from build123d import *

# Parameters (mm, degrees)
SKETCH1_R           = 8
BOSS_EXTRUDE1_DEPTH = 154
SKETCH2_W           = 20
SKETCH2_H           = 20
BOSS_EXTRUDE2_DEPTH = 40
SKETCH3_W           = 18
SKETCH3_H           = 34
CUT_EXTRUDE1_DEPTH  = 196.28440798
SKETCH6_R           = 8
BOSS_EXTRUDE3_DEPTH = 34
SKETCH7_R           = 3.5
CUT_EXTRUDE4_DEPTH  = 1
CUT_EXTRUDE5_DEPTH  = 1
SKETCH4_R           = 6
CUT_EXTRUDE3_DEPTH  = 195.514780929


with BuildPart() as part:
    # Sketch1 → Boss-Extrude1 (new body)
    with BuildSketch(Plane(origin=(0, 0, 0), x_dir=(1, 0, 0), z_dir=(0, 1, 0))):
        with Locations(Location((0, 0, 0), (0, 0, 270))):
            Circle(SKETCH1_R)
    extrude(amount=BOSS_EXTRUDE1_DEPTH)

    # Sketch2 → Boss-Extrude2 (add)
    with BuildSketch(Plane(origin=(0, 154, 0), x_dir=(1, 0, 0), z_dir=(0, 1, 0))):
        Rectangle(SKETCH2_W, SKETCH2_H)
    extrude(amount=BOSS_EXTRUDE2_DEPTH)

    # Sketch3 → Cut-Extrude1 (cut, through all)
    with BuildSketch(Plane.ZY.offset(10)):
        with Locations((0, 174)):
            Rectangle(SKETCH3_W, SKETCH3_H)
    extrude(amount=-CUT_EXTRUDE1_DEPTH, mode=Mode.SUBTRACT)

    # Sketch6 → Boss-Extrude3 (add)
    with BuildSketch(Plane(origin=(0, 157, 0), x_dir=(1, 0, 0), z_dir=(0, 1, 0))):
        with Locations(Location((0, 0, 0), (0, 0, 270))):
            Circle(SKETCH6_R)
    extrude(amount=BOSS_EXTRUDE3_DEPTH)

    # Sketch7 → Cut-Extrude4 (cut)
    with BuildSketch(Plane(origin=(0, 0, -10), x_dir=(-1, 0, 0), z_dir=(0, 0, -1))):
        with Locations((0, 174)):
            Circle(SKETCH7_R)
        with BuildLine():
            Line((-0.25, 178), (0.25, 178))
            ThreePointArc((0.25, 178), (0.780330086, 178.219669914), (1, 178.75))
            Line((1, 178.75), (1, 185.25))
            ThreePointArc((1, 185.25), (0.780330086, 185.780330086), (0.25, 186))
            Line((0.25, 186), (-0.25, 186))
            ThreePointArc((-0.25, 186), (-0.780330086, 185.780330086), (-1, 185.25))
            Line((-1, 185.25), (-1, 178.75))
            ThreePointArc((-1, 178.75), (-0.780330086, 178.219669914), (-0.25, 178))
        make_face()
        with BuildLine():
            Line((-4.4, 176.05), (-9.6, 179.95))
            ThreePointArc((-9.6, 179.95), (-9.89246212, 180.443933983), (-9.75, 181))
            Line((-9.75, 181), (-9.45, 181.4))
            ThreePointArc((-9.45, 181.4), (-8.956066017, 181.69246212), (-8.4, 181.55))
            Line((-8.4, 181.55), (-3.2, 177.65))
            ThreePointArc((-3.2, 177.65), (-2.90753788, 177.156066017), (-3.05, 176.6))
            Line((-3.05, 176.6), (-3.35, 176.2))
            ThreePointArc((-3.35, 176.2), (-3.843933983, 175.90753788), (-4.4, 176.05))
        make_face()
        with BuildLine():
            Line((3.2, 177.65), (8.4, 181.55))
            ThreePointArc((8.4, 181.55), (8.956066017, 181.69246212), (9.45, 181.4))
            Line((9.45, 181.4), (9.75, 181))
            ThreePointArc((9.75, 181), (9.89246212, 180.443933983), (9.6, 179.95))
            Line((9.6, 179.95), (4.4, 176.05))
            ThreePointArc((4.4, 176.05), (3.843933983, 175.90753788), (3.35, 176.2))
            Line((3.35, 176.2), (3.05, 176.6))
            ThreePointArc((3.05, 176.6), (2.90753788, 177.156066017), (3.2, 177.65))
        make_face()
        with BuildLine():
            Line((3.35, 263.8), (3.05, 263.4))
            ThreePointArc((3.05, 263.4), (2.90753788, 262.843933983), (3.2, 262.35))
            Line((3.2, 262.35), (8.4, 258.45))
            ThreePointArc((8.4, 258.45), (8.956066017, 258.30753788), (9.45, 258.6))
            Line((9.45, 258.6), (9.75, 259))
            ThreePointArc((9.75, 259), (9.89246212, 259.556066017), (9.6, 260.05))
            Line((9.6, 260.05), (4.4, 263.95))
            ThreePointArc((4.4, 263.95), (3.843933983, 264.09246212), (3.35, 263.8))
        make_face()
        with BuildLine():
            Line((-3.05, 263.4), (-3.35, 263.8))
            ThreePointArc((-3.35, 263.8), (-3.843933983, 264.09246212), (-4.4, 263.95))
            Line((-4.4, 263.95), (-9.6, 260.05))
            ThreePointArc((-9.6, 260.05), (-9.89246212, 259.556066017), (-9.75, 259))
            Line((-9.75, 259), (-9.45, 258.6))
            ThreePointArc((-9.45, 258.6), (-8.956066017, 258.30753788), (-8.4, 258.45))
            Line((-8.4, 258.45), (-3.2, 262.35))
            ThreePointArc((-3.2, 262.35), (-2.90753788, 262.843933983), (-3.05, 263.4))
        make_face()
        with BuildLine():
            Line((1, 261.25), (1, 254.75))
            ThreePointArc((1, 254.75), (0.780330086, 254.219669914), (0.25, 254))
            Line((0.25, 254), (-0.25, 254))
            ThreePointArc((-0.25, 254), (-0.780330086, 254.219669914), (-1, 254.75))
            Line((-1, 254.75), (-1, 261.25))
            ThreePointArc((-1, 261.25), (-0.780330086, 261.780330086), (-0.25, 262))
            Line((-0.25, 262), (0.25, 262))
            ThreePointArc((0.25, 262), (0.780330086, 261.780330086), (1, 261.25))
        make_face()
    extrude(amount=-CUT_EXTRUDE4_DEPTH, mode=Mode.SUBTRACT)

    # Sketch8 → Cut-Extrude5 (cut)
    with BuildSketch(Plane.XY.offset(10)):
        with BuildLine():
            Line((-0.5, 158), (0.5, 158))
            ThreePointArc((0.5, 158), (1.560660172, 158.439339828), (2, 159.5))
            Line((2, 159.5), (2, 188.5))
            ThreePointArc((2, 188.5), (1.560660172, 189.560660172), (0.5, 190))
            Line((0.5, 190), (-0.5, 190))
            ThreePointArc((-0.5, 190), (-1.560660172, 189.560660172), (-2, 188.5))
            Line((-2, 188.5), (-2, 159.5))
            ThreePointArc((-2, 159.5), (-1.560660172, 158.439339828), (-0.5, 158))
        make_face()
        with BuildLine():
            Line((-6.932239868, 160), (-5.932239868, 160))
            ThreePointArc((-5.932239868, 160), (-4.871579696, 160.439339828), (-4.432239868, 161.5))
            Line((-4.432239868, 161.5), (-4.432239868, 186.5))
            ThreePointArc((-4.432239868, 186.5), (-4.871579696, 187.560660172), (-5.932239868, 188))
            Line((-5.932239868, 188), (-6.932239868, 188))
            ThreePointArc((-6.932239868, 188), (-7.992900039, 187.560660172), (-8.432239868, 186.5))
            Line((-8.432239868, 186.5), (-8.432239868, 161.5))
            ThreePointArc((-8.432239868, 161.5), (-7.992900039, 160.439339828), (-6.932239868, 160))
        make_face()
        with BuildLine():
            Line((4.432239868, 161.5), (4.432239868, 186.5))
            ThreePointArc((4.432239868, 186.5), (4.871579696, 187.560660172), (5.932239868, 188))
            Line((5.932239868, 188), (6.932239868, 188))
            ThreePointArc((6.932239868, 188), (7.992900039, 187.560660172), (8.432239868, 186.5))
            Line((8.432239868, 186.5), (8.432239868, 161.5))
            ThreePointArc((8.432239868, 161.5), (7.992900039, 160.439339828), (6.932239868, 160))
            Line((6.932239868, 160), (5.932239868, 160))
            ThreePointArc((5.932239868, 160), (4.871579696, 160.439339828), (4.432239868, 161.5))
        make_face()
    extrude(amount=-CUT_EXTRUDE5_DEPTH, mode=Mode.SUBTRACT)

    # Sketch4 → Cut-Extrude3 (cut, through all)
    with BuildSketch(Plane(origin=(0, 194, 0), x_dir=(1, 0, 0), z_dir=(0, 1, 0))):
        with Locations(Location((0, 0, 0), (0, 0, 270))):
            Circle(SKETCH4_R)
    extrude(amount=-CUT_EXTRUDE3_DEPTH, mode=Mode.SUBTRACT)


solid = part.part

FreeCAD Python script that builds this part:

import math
import FreeCAD as App
import Part
import Sketcher

V = App.Vector
Q = App.Units.Quantity


def add_polygon(sketch, points):
    """Adds a closed chain of lines whose ends are joined by coincident constraints."""
    first, n = sketch.GeometryCount, len(points)
    for a, b in zip(points, points[1:] + points[:1]):
        sketch.addGeometry(Part.LineSegment(App.Vector(*a, 0), App.Vector(*b, 0)), False)
    for i in range(n):
        sketch.addConstraint(Sketcher.Constraint("Coincident", first + i, 2, first + (i + 1) % n, 1))

doc = App.newDocument("Part")
body = doc.addObject("PartDesign::Body", "Body")

sketch1 = body.newObject("Sketcher::SketchObject", "Sketch")
sketch1.AttachmentSupport = (doc.getObject("XZ_Plane"), [""])
sketch1.MapMode = "FlatFace"
sketch1.addGeometry(Part.Circle(V(0, 0, 0), V(0, 0, 1), 8), False)
sketch1.addConstraint([
    Sketcher.Constraint("Coincident", 0, 3, -1, 1),
    Sketcher.Constraint("Diameter", 0, Q("16 mm")),
])
pad1 = body.newObject("PartDesign::Pad", "Pad")
pad1.Profile = sketch1
pad1.Length = 154
pad1.Reversed = True

sketch2 = body.newObject("Sketcher::SketchObject", "Sketch001")
sketch2.AttachmentSupport = (doc.getObject("XZ_Plane"), [""])
sketch2.MapMode = "FlatFace"
sketch2.AttachmentOffset = App.Placement(V(0, 0, -154), App.Rotation())
add_polygon(sketch2, [(-10, -10), (-10, 10), (10, 10), (10, -10)])
sketch2.addConstraint([
    Sketcher.Constraint("Vertical", 0),
    Sketcher.Constraint("Horizontal", 1),
    Sketcher.Constraint("Vertical", 2),
    Sketcher.Constraint("Horizontal", 3),
    Sketcher.Constraint("Symmetric", 0, 2, 2, 2, -1, 1),
    Sketcher.Constraint("Equal", 3, 0),
    Sketcher.Constraint("DistanceX", 1, 1, 1, 2, Q("20 mm")),
])
pad2 = body.newObject("PartDesign::Pad", "Pad001")
pad2.Profile = sketch2
pad2.Length = 40
pad2.Reversed = True

sketch3 = body.newObject("Sketcher::SketchObject", "Sketch002")
sketch3.AttachmentSupport = (doc.getObject("YZ_Plane"), [""])
sketch3.MapMode = "FlatFace"
sketch3.AttachmentOffset = App.Placement(V(0, 0, -10), App.Rotation())
add_polygon(sketch3, [(191, -9), (157, -9), (157, 9), (191, 9)])
sketch3.addConstraint([
    Sketcher.Constraint("Horizontal", 0),
    Sketcher.Constraint("Vertical", 1),
    Sketcher.Constraint("Horizontal", 2),
    Sketcher.Constraint("Vertical", 3),
    Sketcher.Constraint("DistanceX", 0, 2, 0, 1, Q("34 mm")),
    Sketcher.Constraint("DistanceY", 1, 1, 1, 2, Q("18 mm")),
    Sketcher.Constraint("DistanceX", -1, 1, 0, 2, Q("157 mm")),
    Sketcher.Constraint("DistanceY", 0, 2, -1, 1, Q("9 mm")),
])
pocket1 = body.newObject("PartDesign::Pocket", "Pocket")
pocket1.Profile = sketch3
pocket1.Type = "ThroughAll"
pocket1.Reversed = True

sketch4 = body.newObject("Sketcher::SketchObject", "Sketch003")
sketch4.AttachmentSupport = (doc.getObject("XZ_Plane"), [""])
sketch4.MapMode = "FlatFace"
sketch4.AttachmentOffset = App.Placement(V(0, 0, -157), App.Rotation())
sketch4.addGeometry(Part.Circle(V(0, 0, 0), V(0, 0, 1), 8), False)
sketch4.addConstraint([
    Sketcher.Constraint("Coincident", 0, 3, -1, 1),
    Sketcher.Constraint("Diameter", 0, Q("16 mm")),
])
pad3 = body.newObject("PartDesign::Pad", "Pad002")
pad3.Profile = sketch4
pad3.Length = 34
pad3.Reversed = True

sketch5 = body.newObject("Sketcher::SketchObject", "Sketch004")
sketch5.AttachmentSupport = (doc.getObject("XY_Plane"), [""])
sketch5.MapMode = "FlatFace"
sketch5.AttachmentOffset = App.Placement(V(0, 0, -10), App.Rotation())
sketch5.addGeometry([
    Part.Circle(V(0, 174, 0), V(0, 0, 1), 3.5),
    Part.LineSegment(V(0.25, 178, 0), V(-0.25, 178, 0)),
    Part.ArcOfCircle(Part.Circle(V(-0.25, 178.75, 0), V(0, 0, 1), 0.75), math.radians(180), math.radians(270)),
    Part.LineSegment(V(-1, 178.75, 0), V(-1, 185.25, 0)),
    Part.ArcOfCircle(Part.Circle(V(-0.25, 185.25, 0), V(0, 0, 1), 0.75), math.radians(90), math.radians(180)),
    Part.LineSegment(V(-0.25, 186, 0), V(0.25, 186, 0)),
    Part.ArcOfCircle(Part.Circle(V(0.25, 185.25, 0), V(0, 0, 1), 0.75), math.radians(0), math.radians(90)),
    Part.LineSegment(V(1, 185.25, 0), V(1, 178.75, 0)),
    Part.ArcOfCircle(Part.Circle(V(0.25, 178.75, 0), V(0, 0, 1), 0.75), math.radians(-90), math.radians(0)),
    Part.LineSegment(V(9.6, 179.95, 0), V(4.4, 176.05, 0)),
    Part.ArcOfCircle(Part.Circle(V(3.95, 176.65, 0), V(0, 0, 1), 0.75), math.radians(-143.130102), math.radians(-53.130102)),
    Part.LineSegment(V(3.35, 176.2, 0), V(3.05, 176.6, 0)),
    Part.ArcOfCircle(Part.Circle(V(3.65, 177.05, 0), V(0, 0, 1), 0.75), math.radians(126.869898), math.radians(216.869898)),
    Part.LineSegment(V(3.2, 177.65, 0), V(8.4, 181.55, 0)),
    Part.ArcOfCircle(Part.Circle(V(8.85, 180.95, 0), V(0, 0, 1), 0.75), math.radians(36.869898), math.radians(126.869898)),
    Part.LineSegment(V(9.45, 181.4, 0), V(9.75, 181, 0)),
    Part.ArcOfCircle(Part.Circle(V(9.15, 180.55, 0), V(0, 0, 1), 0.75), math.radians(-53.130102), math.radians(36.869898)),
    Part.LineSegment(V(-8.4, 181.55, 0), V(-3.2, 177.65, 0)),
    Part.ArcOfCircle(Part.Circle(V(-3.65, 177.05, 0), V(0, 0, 1), 0.75), math.radians(-36.869898), math.radians(53.130102)),
    Part.LineSegment(V(-3.05, 176.6, 0), V(-3.35, 176.2, 0)),
    Part.ArcOfCircle(Part.Circle(V(-3.95, 176.65, 0), V(0, 0, 1), 0.75), math.radians(-126.869898), math.radians(-36.869898)),
    Part.LineSegment(V(-4.4, 176.05, 0), V(-9.6, 179.95, 0)),
    Part.ArcOfCircle(Part.Circle(V(-9.15, 180.55, 0), V(0, 0, 1), 0.75), math.radians(143.130102), math.radians(233.130102)),
    Part.LineSegment(V(-9.75, 181, 0), V(-9.45, 181.4, 0)),
    Part.ArcOfCircle(Part.Circle(V(-8.85, 180.95, 0), V(0, 0, 1), 0.75), math.radians(53.130102), math.radians(143.130102)),
    Part.LineSegment(V(-3.35, 263.8, 0), V(-3.05, 263.4, 0)),
    Part.ArcOfCircle(Part.Circle(V(-3.65, 262.95, 0), V(0, 0, 1), 0.75), math.radians(-53.130102), math.radians(36.869898)),
    Part.LineSegment(V(-3.2, 262.35, 0), V(-8.4, 258.45, 0)),
    Part.ArcOfCircle(Part.Circle(V(-8.85, 259.05, 0), V(0, 0, 1), 0.75), math.radians(-143.130102), math.radians(-53.130102)),
    Part.LineSegment(V(-9.45, 258.6, 0), V(-9.75, 259, 0)),
    Part.ArcOfCircle(Part.Circle(V(-9.15, 259.45, 0), V(0, 0, 1), 0.75), math.radians(126.869898), math.radians(216.869898)),
    Part.LineSegment(V(-9.6, 260.05, 0), V(-4.4, 263.95, 0)),
    Part.ArcOfCircle(Part.Circle(V(-3.95, 263.35, 0), V(0, 0, 1), 0.75), math.radians(36.869898), math.radians(126.869898)),
    Part.LineSegment(V(3.05, 263.4, 0), V(3.35, 263.8, 0)),
    Part.ArcOfCircle(Part.Circle(V(3.95, 263.35, 0), V(0, 0, 1), 0.75), math.radians(53.130102), math.radians(143.130102)),
    Part.LineSegment(V(4.4, 263.95, 0), V(9.6, 260.05, 0)),
    Part.ArcOfCircle(Part.Circle(V(9.15, 259.45, 0), V(0, 0, 1), 0.75), math.radians(-36.869898), math.radians(53.130102)),
    Part.LineSegment(V(9.75, 259, 0), V(9.45, 258.6, 0)),
    Part.ArcOfCircle(Part.Circle(V(8.85, 259.05, 0), V(0, 0, 1), 0.75), math.radians(-126.869898), math.radians(-36.869898)),
    Part.LineSegment(V(8.4, 258.45, 0), V(3.2, 262.35, 0)),
    Part.ArcOfCircle(Part.Circle(V(3.65, 262.95, 0), V(0, 0, 1), 0.75), math.radians(143.130102), math.radians(233.130102)),
    Part.LineSegment(V(-1, 254.75, 0), V(-1, 261.25, 0)),
    Part.ArcOfCircle(Part.Circle(V(-0.25, 261.25, 0), V(0, 0, 1), 0.75), math.radians(90), math.radians(180)),
    Part.LineSegment(V(-0.25, 262, 0), V(0.25, 262, 0)),
    Part.ArcOfCircle(Part.Circle(V(0.25, 261.25, 0), V(0, 0, 1), 0.75), math.radians(0), math.radians(90)),
    Part.LineSegment(V(1, 261.25, 0), V(1, 254.75, 0)),
    Part.ArcOfCircle(Part.Circle(V(0.25, 254.75, 0), V(0, 0, 1), 0.75), math.radians(-90), math.radians(0)),
    Part.LineSegment(V(0.25, 254, 0), V(-0.25, 254, 0)),
    Part.ArcOfCircle(Part.Circle(V(-0.25, 254.75, 0), V(0, 0, 1), 0.75), math.radians(180), math.radians(270)),
], False)
sketch5.addConstraint([
    Sketcher.Constraint("Tangent", 1, 2, 2, 2),
    Sketcher.Constraint("Tangent", 2, 1, 3, 1),
    Sketcher.Constraint("Tangent", 3, 2, 4, 2),
    Sketcher.Constraint("Tangent", 4, 1, 5, 1),
    Sketcher.Constraint("Tangent", 5, 2, 6, 2),
    Sketcher.Constraint("Tangent", 6, 1, 7, 1),
    Sketcher.Constraint("Tangent", 7, 2, 8, 2),
    Sketcher.Constraint("Tangent", 8, 1, 1, 1),
    Sketcher.Constraint("Tangent", 9, 2, 10, 2),
    Sketcher.Constraint("Tangent", 10, 1, 11, 1),
    Sketcher.Constraint("Tangent", 11, 2, 12, 2),
    Sketcher.Constraint("Tangent", 12, 1, 13, 1),
    Sketcher.Constraint("Tangent", 13, 2, 14, 2),
    Sketcher.Constraint("Tangent", 14, 1, 15, 1),
    Sketcher.Constraint("Tangent", 15, 2, 16, 2),
    Sketcher.Constraint("Tangent", 16, 1, 9, 1),
    Sketcher.Constraint("Tangent", 17, 2, 18, 2),
    Sketcher.Constraint("Tangent", 18, 1, 19, 1),
    Sketcher.Constraint("Tangent", 19, 2, 20, 2),
    Sketcher.Constraint("Tangent", 20, 1, 21, 1),
    Sketcher.Constraint("Tangent", 21, 2, 22, 2),
    Sketcher.Constraint("Tangent", 22, 1, 23, 1),
    Sketcher.Constraint("Tangent", 23, 2, 24, 2),
    Sketcher.Constraint("Tangent", 24, 1, 17, 1),
    Sketcher.Constraint("Tangent", 25, 2, 26, 2),
    Sketcher.Constraint("Tangent", 26, 1, 27, 1),
    Sketcher.Constraint("Tangent", 27, 2, 28, 2),
    Sketcher.Constraint("Tangent", 28, 1, 29, 1),
    Sketcher.Constraint("Tangent", 29, 2, 30, 2),
    Sketcher.Constraint("Tangent", 30, 1, 31, 1),
    Sketcher.Constraint("Tangent", 31, 2, 32, 2),
    Sketcher.Constraint("Tangent", 32, 1, 25, 1),
    Sketcher.Constraint("Tangent", 33, 2, 34, 2),
    Sketcher.Constraint("Tangent", 34, 1, 35, 1),
    Sketcher.Constraint("Tangent", 35, 2, 36, 2),
    Sketcher.Constraint("Tangent", 36, 1, 37, 1),
    Sketcher.Constraint("Tangent", 37, 2, 38, 2),
    Sketcher.Constraint("Tangent", 38, 1, 39, 1),
    Sketcher.Constraint("Tangent", 39, 2, 40, 2),
    Sketcher.Constraint("Tangent", 40, 1, 33, 1),
    Sketcher.Constraint("Tangent", 41, 2, 42, 2),
    Sketcher.Constraint("Tangent", 42, 1, 43, 1),
    Sketcher.Constraint("Tangent", 43, 2, 44, 2),
    Sketcher.Constraint("Tangent", 44, 1, 45, 1),
    Sketcher.Constraint("Tangent", 45, 2, 46, 2),
    Sketcher.Constraint("Tangent", 46, 1, 47, 1),
    Sketcher.Constraint("Tangent", 47, 2, 48, 2),
    Sketcher.Constraint("Tangent", 48, 1, 41, 1),
    Sketcher.Constraint("Horizontal", 1),
    Sketcher.Constraint("Vertical", 3),
    Sketcher.Constraint("Horizontal", 5),
    Sketcher.Constraint("Vertical", 7),
    Sketcher.Constraint("Vertical", 41),
    Sketcher.Constraint("Horizontal", 43),
    Sketcher.Constraint("Vertical", 45),
    Sketcher.Constraint("Horizontal", 47),
    Sketcher.Constraint("Equal", 2, 4),
    Sketcher.Constraint("Equal", 4, 6),
    Sketcher.Constraint("Equal", 6, 8),
    Sketcher.Constraint("Equal", 8, 10),
    Sketcher.Constraint("Equal", 10, 12),
    Sketcher.Constraint("Equal", 12, 14),
    Sketcher.Constraint("Equal", 14, 16),
    Sketcher.Constraint("Equal", 16, 18),
    Sketcher.Constraint("Equal", 18, 20),
    Sketcher.Constraint("Equal", 20, 22),
    Sketcher.Constraint("Equal", 22, 24),
    Sketcher.Constraint("Equal", 24, 26),
    Sketcher.Constraint("Equal", 26, 28),
    Sketcher.Constraint("Equal", 28, 30),
    Sketcher.Constraint("Equal", 30, 32),
    Sketcher.Constraint("Equal", 32, 34),
    Sketcher.Constraint("Equal", 34, 36),
    Sketcher.Constraint("Equal", 36, 38),
    Sketcher.Constraint("Equal", 38, 40),
    Sketcher.Constraint("Equal", 40, 42),
    Sketcher.Constraint("Equal", 42, 44),
    Sketcher.Constraint("Equal", 44, 46),
    Sketcher.Constraint("Equal", 46, 48),
    Sketcher.Constraint("Symmetric", 12, 3, 18, 3, -2),
    Sketcher.Constraint("Symmetric", 10, 3, 20, 3, -2),
    Sketcher.Constraint("Symmetric", 16, 3, 22, 3, -2),
    Sketcher.Constraint("Symmetric", 14, 3, 24, 3, -2),
    Sketcher.Constraint("Symmetric", 32, 3, 34, 3, -2),
    Sketcher.Constraint("Symmetric", 30, 3, 36, 3, -2),
    Sketcher.Constraint("Symmetric", 28, 3, 38, 3, -2),
    Sketcher.Constraint("Symmetric", 26, 3, 40, 3, -2),
    Sketcher.Constraint("PointOnObject", 0, 3, -2),
    Sketcher.Constraint("Perpendicular", 9, 11),
    Sketcher.Constraint("Perpendicular", 11, 13),
    Sketcher.Constraint("Perpendicular", 13, 15),
    Sketcher.Constraint("Parallel", 15, 25),
    Sketcher.Constraint("Perpendicular", 25, 27),
    Sketcher.Constraint("Perpendicular", 27, 29),
    Sketcher.Constraint("Perpendicular", 29, 31),
    Sketcher.Constraint("Vertical", 18, 3, 26, 3),
    Sketcher.Constraint("Vertical", 24, 3, 28, 3),
    Sketcher.Constraint("Vertical", 22, 3, 30, 3),
    Sketcher.Constraint("Vertical", 4, 3, 42, 3),
    Sketcher.Constraint("Vertical", 8, 3, 44, 3),
    Sketcher.Constraint("Equal", 7, 41),
    Sketcher.Constraint("Diameter", 0, Q("7 mm")),
    Sketcher.Constraint("Radius", 2, Q("0.75 mm")),
    Sketcher.Constraint("DistanceX", 1, 2, 1, 1, Q("0.5 mm")),
    Sketcher.Constraint("DistanceY", 3, 1, 3, 2, Q("6.5 mm")),
    Sketcher.Constraint("DistanceY", -1, 1, 0, 3, Q("174 mm")),
    Sketcher.Constraint("DistanceY", -1, 1, 1, 2, Q("178 mm")),
    Sketcher.Constraint("DistanceX", 2, 1, -1, 1, Q("1 mm")),
    Sketcher.Constraint("DistanceY", -1, 1, 15, 2, Q("181 mm")),
    Sketcher.Constraint("DistanceY", -1, 1, 29, 2, Q("259 mm")),
    Sketcher.Constraint("DistanceY", -1, 1, 42, 1, Q("262 mm")),
    Sketcher.Constraint("Distance", 9, Q("6.5 mm")),
    Sketcher.Constraint("Distance", 11, Q("0.5 mm")),
    Sketcher.Constraint("DistanceX", -1, 1, 9, 2, Q("4.4 mm")),
    Sketcher.Constraint("DistanceY", -1, 1, 10, 1, Q("176.2 mm")),
])
pocket2 = body.newObject("PartDesign::Pocket", "Pocket001")
pocket2.Profile = sketch5
pocket2.Length = 1
pocket2.Reversed = True

sketch6 = body.newObject("Sketcher::SketchObject", "Sketch005")
sketch6.AttachmentSupport = (doc.getObject("XY_Plane"), [""])
sketch6.MapMode = "FlatFace"
sketch6.AttachmentOffset = App.Placement(V(0, 0, 10), App.Rotation())
sketch6.addGeometry([
    Part.LineSegment(V(-0.5, 158, 0), V(0.5, 158, 0)),
    Part.ArcOfCircle(Part.Circle(V(0.5, 159.5, 0), V(0, 0, 1), 1.5), math.radians(-90), math.radians(0)),
    Part.LineSegment(V(2, 159.5, 0), V(2, 188.5, 0)),
    Part.ArcOfCircle(Part.Circle(V(0.5, 188.5, 0), V(0, 0, 1), 1.5), math.radians(0), math.radians(90)),
    Part.LineSegment(V(0.5, 190, 0), V(-0.5, 190, 0)),
    Part.ArcOfCircle(Part.Circle(V(-0.5, 188.5, 0), V(0, 0, 1), 1.5), math.radians(90), math.radians(180)),
    Part.LineSegment(V(-2, 188.5, 0), V(-2, 159.5, 0)),
    Part.ArcOfCircle(Part.Circle(V(-0.5, 159.5, 0), V(0, 0, 1), 1.5), math.radians(180), math.radians(270)),
    Part.LineSegment(V(-6.93224, 160, 0), V(-5.93224, 160, 0)),
    Part.ArcOfCircle(Part.Circle(V(-5.93224, 161.5, 0), V(0, 0, 1), 1.5), math.radians(-90), math.radians(0)),
    Part.LineSegment(V(-4.43224, 161.5, 0), V(-4.43224, 186.5, 0)),
    Part.ArcOfCircle(Part.Circle(V(-5.93224, 186.5, 0), V(0, 0, 1), 1.5), math.radians(0), math.radians(90)),
    Part.LineSegment(V(-5.93224, 188, 0), V(-6.93224, 188, 0)),
    Part.ArcOfCircle(Part.Circle(V(-6.93224, 186.5, 0), V(0, 0, 1), 1.5), math.radians(90), math.radians(180)),
    Part.LineSegment(V(-8.43224, 186.5, 0), V(-8.43224, 161.5, 0)),
    Part.ArcOfCircle(Part.Circle(V(-6.93224, 161.5, 0), V(0, 0, 1), 1.5), math.radians(-180), math.radians(-90)),
    Part.LineSegment(V(4.43224, 186.5, 0), V(4.43224, 161.5, 0)),
    Part.ArcOfCircle(Part.Circle(V(5.93224, 161.5, 0), V(0, 0, 1), 1.5), math.radians(180), math.radians(270)),
    Part.LineSegment(V(5.93224, 160, 0), V(6.93224, 160, 0)),
    Part.ArcOfCircle(Part.Circle(V(6.93224, 161.5, 0), V(0, 0, 1), 1.5), math.radians(-90), math.radians(0)),
    Part.LineSegment(V(8.43224, 161.5, 0), V(8.43224, 186.5, 0)),
    Part.ArcOfCircle(Part.Circle(V(6.93224, 186.5, 0), V(0, 0, 1), 1.5), math.radians(0), math.radians(90)),
    Part.LineSegment(V(6.93224, 188, 0), V(5.93224, 188, 0)),
    Part.ArcOfCircle(Part.Circle(V(5.93224, 186.5, 0), V(0, 0, 1), 1.5), math.radians(90), math.radians(180)),
], False)
sketch6.addConstraint([
    Sketcher.Constraint("Tangent", 0, 2, 1, 1),
    Sketcher.Constraint("Tangent", 1, 2, 2, 1),
    Sketcher.Constraint("Tangent", 2, 2, 3, 1),
    Sketcher.Constraint("Tangent", 3, 2, 4, 1),
    Sketcher.Constraint("Tangent", 4, 2, 5, 1),
    Sketcher.Constraint("Tangent", 5, 2, 6, 1),
    Sketcher.Constraint("Tangent", 6, 2, 7, 1),
    Sketcher.Constraint("Tangent", 7, 2, 0, 1),
    Sketcher.Constraint("Tangent", 8, 2, 9, 1),
    Sketcher.Constraint("Tangent", 9, 2, 10, 1),
    Sketcher.Constraint("Tangent", 10, 2, 11, 1),
    Sketcher.Constraint("Tangent", 11, 2, 12, 1),
    Sketcher.Constraint("Tangent", 12, 2, 13, 1),
    Sketcher.Constraint("Tangent", 13, 2, 14, 1),
    Sketcher.Constraint("Tangent", 14, 2, 15, 1),
    Sketcher.Constraint("Tangent", 15, 2, 8, 1),
    Sketcher.Constraint("Tangent", 16, 2, 17, 1),
    Sketcher.Constraint("Tangent", 17, 2, 18, 1),
    Sketcher.Constraint("Tangent", 18, 2, 19, 1),
    Sketcher.Constraint("Tangent", 19, 2, 20, 1),
    Sketcher.Constraint("Tangent", 20, 2, 21, 1),
    Sketcher.Constraint("Tangent", 21, 2, 22, 1),
    Sketcher.Constraint("Tangent", 22, 2, 23, 1),
    Sketcher.Constraint("Tangent", 23, 2, 16, 1),
    Sketcher.Constraint("Horizontal", 0),
    Sketcher.Constraint("Vertical", 2),
    Sketcher.Constraint("Horizontal", 4),
    Sketcher.Constraint("Vertical", 6),
    Sketcher.Constraint("Horizontal", 8),
    Sketcher.Constraint("Vertical", 10),
    Sketcher.Constraint("Horizontal", 12),
    Sketcher.Constraint("Vertical", 14),
    Sketcher.Constraint("Vertical", 16),
    Sketcher.Constraint("Horizontal", 18),
    Sketcher.Constraint("Vertical", 20),
    Sketcher.Constraint("Horizontal", 22),
    Sketcher.Constraint("Equal", 1, 3),
    Sketcher.Constraint("Equal", 3, 5),
    Sketcher.Constraint("Equal", 5, 7),
    Sketcher.Constraint("Equal", 7, 9),
    Sketcher.Constraint("Equal", 9, 11),
    Sketcher.Constraint("Equal", 11, 13),
    Sketcher.Constraint("Equal", 13, 15),
    Sketcher.Constraint("Equal", 15, 17),
    Sketcher.Constraint("Equal", 17, 19),
    Sketcher.Constraint("Equal", 19, 21),
    Sketcher.Constraint("Equal", 21, 23),
    Sketcher.Constraint("Symmetric", 9, 3, 17, 3, -2),
    Sketcher.Constraint("Symmetric", 13, 3, 21, 3, -2),
    Sketcher.Constraint("Equal", 4, 8),
    Sketcher.Constraint("Radius", 1, Q("1.5 mm")),
    Sketcher.Constraint("DistanceX", 0, 1, 0, 2, Q("1 mm")),
    Sketcher.Constraint("DistanceY", 2, 1, 2, 2, Q("29 mm")),
    Sketcher.Constraint("DistanceY", 10, 1, 10, 2, Q("25 mm")),
    Sketcher.Constraint("DistanceY", -1, 1, 0, 2, Q("158 mm")),
    Sketcher.Constraint("DistanceX", -1, 1, 1, 2, Q("2 mm")),
    Sketcher.Constraint("DistanceY", -1, 1, 8, 2, Q("160 mm")),
    Sketcher.Constraint("DistanceX", 9, 3, -1, 1, Q("5.93224 mm")),
])
pocket3 = body.newObject("PartDesign::Pocket", "Pocket002")
pocket3.Profile = sketch6
pocket3.Length = 1

sketch7 = body.newObject("Sketcher::SketchObject", "Sketch006")
sketch7.AttachmentSupport = (doc.getObject("XZ_Plane"), [""])
sketch7.MapMode = "FlatFace"
sketch7.AttachmentOffset = App.Placement(V(0, 0, -194), App.Rotation())
sketch7.addGeometry(Part.Circle(V(0, 0, 0), V(0, 0, 1), 6), False)
sketch7.addConstraint([
    Sketcher.Constraint("Coincident", 0, 3, -1, 1),
    Sketcher.Constraint("Diameter", 0, Q("12 mm")),
])
pocket4 = body.newObject("PartDesign::Pocket", "Pocket003")
pocket4.Profile = sketch7
pocket4.Type = "ThroughAll"
pocket4.Reversed = True

doc.recompute()
